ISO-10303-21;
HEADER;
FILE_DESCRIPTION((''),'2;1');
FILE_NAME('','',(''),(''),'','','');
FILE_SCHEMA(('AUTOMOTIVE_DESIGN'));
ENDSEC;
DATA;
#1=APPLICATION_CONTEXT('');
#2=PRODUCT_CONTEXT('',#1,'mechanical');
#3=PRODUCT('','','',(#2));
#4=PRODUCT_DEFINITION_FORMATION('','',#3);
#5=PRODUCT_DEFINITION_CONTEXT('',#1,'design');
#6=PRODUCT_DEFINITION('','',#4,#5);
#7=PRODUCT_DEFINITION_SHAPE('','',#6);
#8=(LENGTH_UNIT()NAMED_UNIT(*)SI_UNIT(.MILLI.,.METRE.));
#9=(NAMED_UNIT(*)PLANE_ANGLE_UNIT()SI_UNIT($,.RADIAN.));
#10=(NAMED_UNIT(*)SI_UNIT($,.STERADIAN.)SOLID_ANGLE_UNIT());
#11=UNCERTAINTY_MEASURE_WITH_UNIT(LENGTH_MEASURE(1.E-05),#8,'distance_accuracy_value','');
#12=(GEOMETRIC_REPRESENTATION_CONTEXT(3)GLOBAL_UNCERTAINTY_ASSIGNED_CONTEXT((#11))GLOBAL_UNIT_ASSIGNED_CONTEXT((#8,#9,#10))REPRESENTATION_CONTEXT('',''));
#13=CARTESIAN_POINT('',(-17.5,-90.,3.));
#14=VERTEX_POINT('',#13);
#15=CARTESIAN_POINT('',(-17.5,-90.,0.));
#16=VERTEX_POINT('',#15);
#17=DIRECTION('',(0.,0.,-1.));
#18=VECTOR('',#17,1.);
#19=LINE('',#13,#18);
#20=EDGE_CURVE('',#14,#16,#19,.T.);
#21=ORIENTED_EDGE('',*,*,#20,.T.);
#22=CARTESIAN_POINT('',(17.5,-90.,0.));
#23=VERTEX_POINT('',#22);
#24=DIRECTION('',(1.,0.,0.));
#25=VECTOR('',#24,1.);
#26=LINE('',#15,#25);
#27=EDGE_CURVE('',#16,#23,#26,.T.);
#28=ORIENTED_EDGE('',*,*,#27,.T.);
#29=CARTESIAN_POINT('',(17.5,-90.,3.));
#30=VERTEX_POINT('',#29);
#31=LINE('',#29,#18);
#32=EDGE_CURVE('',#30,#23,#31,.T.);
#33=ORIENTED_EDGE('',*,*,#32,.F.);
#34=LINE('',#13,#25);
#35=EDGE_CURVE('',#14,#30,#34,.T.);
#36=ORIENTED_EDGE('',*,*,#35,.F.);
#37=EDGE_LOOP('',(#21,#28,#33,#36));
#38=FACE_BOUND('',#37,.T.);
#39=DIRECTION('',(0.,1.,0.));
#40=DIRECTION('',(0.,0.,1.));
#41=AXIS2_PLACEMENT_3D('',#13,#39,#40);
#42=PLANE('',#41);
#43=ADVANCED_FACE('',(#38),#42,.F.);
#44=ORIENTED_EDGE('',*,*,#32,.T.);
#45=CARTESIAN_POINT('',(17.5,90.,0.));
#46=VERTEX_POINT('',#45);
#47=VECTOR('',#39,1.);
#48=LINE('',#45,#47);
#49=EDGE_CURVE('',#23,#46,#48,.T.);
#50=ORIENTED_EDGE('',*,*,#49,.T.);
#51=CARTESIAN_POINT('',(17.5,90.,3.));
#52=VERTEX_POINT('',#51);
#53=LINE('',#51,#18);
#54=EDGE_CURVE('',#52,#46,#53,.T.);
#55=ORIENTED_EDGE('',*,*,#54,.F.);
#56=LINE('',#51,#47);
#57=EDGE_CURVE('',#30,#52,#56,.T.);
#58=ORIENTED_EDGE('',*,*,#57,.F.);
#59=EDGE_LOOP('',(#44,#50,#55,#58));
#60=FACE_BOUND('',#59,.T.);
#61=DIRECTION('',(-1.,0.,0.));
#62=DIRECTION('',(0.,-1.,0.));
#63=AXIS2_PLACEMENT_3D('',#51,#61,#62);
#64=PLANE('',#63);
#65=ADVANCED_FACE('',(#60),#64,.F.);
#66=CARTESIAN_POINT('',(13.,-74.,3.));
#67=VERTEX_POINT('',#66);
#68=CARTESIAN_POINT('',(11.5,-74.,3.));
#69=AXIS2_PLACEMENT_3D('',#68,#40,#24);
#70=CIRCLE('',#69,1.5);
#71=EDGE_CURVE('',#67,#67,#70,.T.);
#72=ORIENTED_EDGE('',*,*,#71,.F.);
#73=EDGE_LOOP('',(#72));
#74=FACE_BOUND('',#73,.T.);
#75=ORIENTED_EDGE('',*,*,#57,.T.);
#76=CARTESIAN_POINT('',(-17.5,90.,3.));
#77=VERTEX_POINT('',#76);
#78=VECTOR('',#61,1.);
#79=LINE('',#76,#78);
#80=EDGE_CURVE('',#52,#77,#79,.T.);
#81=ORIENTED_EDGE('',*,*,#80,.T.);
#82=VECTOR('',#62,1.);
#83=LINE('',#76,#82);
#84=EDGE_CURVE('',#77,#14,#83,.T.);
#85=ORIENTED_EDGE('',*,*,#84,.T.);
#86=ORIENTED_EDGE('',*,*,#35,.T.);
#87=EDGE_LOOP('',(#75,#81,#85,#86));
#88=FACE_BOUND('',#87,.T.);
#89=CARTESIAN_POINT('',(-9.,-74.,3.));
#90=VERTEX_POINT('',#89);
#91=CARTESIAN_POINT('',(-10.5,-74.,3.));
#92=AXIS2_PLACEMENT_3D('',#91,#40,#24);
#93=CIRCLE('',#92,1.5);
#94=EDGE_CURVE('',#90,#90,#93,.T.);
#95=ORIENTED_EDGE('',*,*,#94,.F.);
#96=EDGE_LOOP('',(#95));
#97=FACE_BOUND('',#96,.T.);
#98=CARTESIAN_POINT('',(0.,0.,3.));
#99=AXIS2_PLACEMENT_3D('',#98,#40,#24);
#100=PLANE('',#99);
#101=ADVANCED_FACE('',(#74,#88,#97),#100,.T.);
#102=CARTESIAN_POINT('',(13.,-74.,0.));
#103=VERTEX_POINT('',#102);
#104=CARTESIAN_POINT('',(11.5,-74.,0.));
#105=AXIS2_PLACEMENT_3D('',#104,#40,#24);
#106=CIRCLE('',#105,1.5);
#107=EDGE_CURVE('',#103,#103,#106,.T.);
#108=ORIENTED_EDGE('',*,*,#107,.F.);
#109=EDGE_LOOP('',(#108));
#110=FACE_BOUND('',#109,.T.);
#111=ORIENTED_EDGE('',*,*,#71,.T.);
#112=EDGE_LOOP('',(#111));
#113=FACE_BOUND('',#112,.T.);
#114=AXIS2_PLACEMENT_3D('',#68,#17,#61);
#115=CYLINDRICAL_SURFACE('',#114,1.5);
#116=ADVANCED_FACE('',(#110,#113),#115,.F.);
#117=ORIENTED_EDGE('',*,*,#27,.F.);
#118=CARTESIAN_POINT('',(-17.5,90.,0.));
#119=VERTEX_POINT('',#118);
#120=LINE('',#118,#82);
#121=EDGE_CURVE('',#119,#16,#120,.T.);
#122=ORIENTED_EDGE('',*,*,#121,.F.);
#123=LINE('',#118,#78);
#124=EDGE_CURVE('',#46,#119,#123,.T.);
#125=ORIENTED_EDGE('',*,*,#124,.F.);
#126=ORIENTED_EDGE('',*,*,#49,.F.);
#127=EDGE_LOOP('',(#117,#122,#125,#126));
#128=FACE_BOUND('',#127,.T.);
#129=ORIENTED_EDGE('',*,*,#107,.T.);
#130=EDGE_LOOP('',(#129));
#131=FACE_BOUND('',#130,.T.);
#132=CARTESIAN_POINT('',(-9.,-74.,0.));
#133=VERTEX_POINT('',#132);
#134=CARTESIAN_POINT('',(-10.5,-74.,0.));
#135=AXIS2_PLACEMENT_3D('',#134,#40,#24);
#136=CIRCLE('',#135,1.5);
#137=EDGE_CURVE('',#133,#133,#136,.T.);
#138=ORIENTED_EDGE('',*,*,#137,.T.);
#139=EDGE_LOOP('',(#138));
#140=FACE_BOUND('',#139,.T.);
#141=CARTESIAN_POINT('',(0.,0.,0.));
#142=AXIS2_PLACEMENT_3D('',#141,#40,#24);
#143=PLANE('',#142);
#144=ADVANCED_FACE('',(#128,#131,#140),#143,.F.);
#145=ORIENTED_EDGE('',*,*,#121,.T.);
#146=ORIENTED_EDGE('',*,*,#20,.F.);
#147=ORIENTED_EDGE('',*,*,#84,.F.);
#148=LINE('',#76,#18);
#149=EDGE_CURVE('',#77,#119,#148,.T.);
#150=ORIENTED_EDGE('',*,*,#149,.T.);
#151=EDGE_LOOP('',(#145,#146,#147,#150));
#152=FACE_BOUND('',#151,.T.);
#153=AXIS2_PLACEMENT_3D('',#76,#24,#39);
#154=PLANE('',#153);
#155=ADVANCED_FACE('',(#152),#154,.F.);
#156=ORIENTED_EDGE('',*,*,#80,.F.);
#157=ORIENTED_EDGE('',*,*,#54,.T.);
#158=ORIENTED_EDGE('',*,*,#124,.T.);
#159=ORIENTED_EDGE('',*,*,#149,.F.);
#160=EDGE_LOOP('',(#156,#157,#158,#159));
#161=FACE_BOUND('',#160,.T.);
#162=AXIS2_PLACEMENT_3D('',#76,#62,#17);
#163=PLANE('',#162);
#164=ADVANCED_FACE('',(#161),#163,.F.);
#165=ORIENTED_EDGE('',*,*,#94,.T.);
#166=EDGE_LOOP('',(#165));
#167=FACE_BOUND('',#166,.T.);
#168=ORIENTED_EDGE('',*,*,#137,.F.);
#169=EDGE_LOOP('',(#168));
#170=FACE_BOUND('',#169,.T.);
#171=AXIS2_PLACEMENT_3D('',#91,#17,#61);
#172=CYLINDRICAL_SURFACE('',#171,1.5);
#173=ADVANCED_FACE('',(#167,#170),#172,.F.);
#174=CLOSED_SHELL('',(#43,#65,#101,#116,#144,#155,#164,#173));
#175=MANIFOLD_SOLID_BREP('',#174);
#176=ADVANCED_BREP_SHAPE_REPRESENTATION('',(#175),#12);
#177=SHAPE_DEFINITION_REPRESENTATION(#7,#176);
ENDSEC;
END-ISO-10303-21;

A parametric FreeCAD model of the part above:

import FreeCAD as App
import Part
import Sketcher

doc = App.newDocument("Part")
body = doc.addObject("PartDesign::Body", "Body")

sketch1 = body.newObject("Sketcher::SketchObject", "Sketch")
sketch1.AttachmentSupport = (doc.getObject("XY_Plane"), [""])
sketch1.MapMode = "FlatFace"
sketch1.addGeometry(Part.LineSegment(App.Vector(-17.5, 90, 0), App.Vector(-17.5, -90, 0)), False)
sketch1.addGeometry(Part.LineSegment(App.Vector(-17.5, -90, 0), App.Vector(17.5, -90, 0)), False)
sketch1.addGeometry(Part.LineSegment(App.Vector(17.5, -90, 0), App.Vector(17.5, 90, 0)), False)
sketch1.addGeometry(Part.LineSegment(App.Vector(17.5, 90, 0), App.Vector(-17.5, 90, 0)), False)
sketch1.addGeometry(Part.Circle(App.Vector(-10.5, -74, 0), App.Vector(0, 0, 1), 1.5), False)
sketch1.addGeometry(Part.Circle(App.Vector(11.5, -74, 0), App.Vector(0, 0, 1), 1.5), False)
sketch1.addConstraint(Sketcher.Constraint("Coincident", 0, 2, 1, 1))
sketch1.addConstraint(Sketcher.Constraint("Coincident", 1, 2, 2, 1))
sketch1.addConstraint(Sketcher.Constraint("Coincident", 2, 2, 3, 1))
sketch1.addConstraint(Sketcher.Constraint("Coincident", 3, 2, 0, 1))
sketch1.addConstraint(Sketcher.Constraint("Vertical", 0))
sketch1.addConstraint(Sketcher.Constraint("Horizontal", 1))
sketch1.addConstraint(Sketcher.Constraint("Vertical", 2))
sketch1.addConstraint(Sketcher.Constraint("Horizontal", 3))
sketch1.addConstraint(Sketcher.Constraint("Equal", 4, 5))
sketch1.addConstraint(Sketcher.Constraint("Symmetric", 0, 2, 2, 2, -1, 1))
sketch1.addConstraint(Sketcher.Constraint("Horizontal", 4, 3, 5, 3))
sketch1.addConstraint(Sketcher.Constraint("Diameter", 4, 3.0))
sketch1.addConstraint(Sketcher.Constraint("DistanceX", 1, 1, 1, 2, 35.0))
sketch1.addConstraint(Sketcher.Constraint("DistanceY", 0, 2, 0, 1, 180.0))
sketch1.addConstraint(Sketcher.Constraint("DistanceY", 4, 3, -1, 1, 74.0))
sketch1.addConstraint(Sketcher.Constraint("DistanceX", 4, 3, 5, 3, 22.0))
sketch1.addConstraint(Sketcher.Constraint("DistanceX", 0, 2, 4, 3, 7.0))
pad1 = body.newObject("PartDesign::Pad", "Pad")
pad1.Profile = sketch1
pad1.Length = 3

doc.recompute()
